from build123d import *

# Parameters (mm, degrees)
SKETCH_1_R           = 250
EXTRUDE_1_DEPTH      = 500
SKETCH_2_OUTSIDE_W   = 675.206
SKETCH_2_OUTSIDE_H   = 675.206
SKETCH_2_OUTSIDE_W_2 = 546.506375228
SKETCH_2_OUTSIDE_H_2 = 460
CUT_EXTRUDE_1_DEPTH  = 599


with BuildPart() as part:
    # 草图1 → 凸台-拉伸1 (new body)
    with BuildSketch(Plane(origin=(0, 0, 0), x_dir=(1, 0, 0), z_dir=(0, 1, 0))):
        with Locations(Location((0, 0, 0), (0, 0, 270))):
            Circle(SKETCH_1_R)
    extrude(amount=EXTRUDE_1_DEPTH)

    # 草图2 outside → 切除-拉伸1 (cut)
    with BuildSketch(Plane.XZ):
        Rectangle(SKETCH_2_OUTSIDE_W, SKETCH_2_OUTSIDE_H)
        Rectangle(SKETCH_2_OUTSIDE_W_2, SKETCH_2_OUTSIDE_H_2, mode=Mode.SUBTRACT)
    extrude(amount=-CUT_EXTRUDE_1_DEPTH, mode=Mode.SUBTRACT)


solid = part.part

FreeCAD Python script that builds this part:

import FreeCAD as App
import Part
import Sketcher

V = App.Vector


def add_polygon(sketch, points):
    """Adds a closed chain of lines whose ends are joined by coincident constraints."""
    first, n = sketch.GeometryCount, len(points)
    for a, b in zip(points, points[1:] + points[:1]):
        sketch.addGeometry(Part.LineSegment(App.Vector(*a, 0), App.Vector(*b, 0)), False)
    for i in range(n):
        sketch.addConstraint(Sketcher.Constraint("Coincident", first + i, 2, first + (i + 1) % n, 1))

doc = App.newDocument("Part")
body = doc.addObject("PartDesign::Body", "Body")

# Sketch on XZ plane
sketch1 = doc.addObject("Sketcher::SketchObject", "Sketch")
body.addObject(sketch1)
sketch1.AttachmentSupport = (doc.XZ_Plane, [""])
sketch1.MapMode = "FlatFace"
sketch1.addGeometry(Part.Circle(V(0, 0, 0), V(0, 0, 1), 250), False)
sketch1.addConstraint(Sketcher.Constraint("Coincident", 0, 3, -1, 1))
sketch1.addConstraint(Sketcher.Constraint("Diameter", 0, 500.0))
pad1 = doc.addObject("PartDesign::Pad", "Pad")
body.addObject(pad1)
pad1.Profile = sketch1
pad1.Length = 500
pad1.Reversed = True

# Sketch on XZ plane
sketch2 = doc.addObject("Sketcher::SketchObject", "Sketch001")
body.addObject(sketch2)
sketch2.AttachmentSupport = (doc.XZ_Plane, [""])
sketch2.MapMode = "FlatFace"
add_polygon(sketch2, [(-337.603, 337.603), (-337.603, -337.603), (337.603, -337.603), (337.603, 337.603)])  # lines 0-3
add_polygon(sketch2, [(273.253188, -230), (-273.253188, -230), (-273.253188, 230), (273.253188, 230)])  # lines 4-7
sketch2.addConstraint(Sketcher.Constraint("Vertical", 0))
sketch2.addConstraint(Sketcher.Constraint("Horizontal", 1))
sketch2.addConstraint(Sketcher.Constraint("Vertical", 2))
sketch2.addConstraint(Sketcher.Constraint("Horizontal", 3))
sketch2.addConstraint(Sketcher.Constraint("Horizontal", 4))
sketch2.addConstraint(Sketcher.Constraint("Vertical", 5))
sketch2.addConstraint(Sketcher.Constraint("Horizontal", 6))
sketch2.addConstraint(Sketcher.Constraint("Vertical", 7))
sketch2.addConstraint(Sketcher.Constraint("Symmetric", 0, 2, 2, 2, -1, 1))
sketch2.addConstraint(Sketcher.Constraint("Symmetric", 4, 2, 6, 2, -1, 1))
sketch2.addConstraint(Sketcher.Constraint("Equal", 3, 0))
sketch2.addConstraint(Sketcher.Constraint("DistanceY", 5, 1, 5, 2, 460.0))
sketch2.addConstraint(Sketcher.Constraint("DistanceX", 1, 1, 1, 2, 675.206))
sketch2.addConstraint(Sketcher.Constraint("DistanceX", 4, 2, 4, 1, 546.506375))
pocket1 = doc.addObject("PartDesign::Pocket", "Pocket")
body.addObject(pocket1)
pocket1.Profile = sketch2
pocket1.Length = 599

doc.recompute()
